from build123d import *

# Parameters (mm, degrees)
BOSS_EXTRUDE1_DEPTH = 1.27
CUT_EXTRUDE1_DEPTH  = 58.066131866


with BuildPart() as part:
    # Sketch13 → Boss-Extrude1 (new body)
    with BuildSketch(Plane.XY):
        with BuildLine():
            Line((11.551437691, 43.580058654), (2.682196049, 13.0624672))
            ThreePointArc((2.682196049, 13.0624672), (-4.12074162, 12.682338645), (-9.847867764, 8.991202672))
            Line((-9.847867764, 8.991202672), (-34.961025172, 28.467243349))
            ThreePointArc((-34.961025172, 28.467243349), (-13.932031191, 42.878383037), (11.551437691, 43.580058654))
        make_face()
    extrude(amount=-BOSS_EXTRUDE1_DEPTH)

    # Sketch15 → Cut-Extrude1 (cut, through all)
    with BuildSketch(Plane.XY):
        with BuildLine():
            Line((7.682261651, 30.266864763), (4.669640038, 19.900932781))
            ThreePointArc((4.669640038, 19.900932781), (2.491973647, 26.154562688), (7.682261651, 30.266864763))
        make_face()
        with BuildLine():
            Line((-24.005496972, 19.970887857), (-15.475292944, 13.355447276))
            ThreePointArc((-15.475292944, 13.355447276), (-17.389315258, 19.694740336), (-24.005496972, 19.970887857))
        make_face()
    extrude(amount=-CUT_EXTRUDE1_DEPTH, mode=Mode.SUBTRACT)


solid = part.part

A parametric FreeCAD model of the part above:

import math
import FreeCAD as App
import Part
import Sketcher

V = App.Vector
Q = App.Units.Quantity

doc = App.newDocument("Part")
params = doc.addObject("Spreadsheet::Sheet", "Params")
for row, (alias, value) in enumerate([
    ("sketch1_radius", "1.775 in"),
    ("sketch1_radius2", "0.525 in"),
    ("pad1_length", "0.05 in"),
    ("sketch2_radius", "0.225 in"),
], start=1):
    params.set(f"A{row}", alias)
    params.set(f"B{row}", "=" + value)
    params.setAlias(f"B{row}", alias)

body = doc.addObject("PartDesign::Body", "Body")

# Sketch on XY plane
sketch1 = body.newObject("Sketcher::SketchObject", "Sketch")
sketch1.AttachmentSupport = (doc.getObject("XY_Plane"), [""])
sketch1.MapMode = "FlatFace"
sketch1.addGeometry(Part.LineSegment(V(3, 13, 0), V(12, 44, 0)), False)
sketch1.addGeometry(Part.ArcOfCircle(Part.Circle(V(0, 0, 0), V(0, 0, 1), 45), math.radians(75), math.radians(141)), False)
sketch1.addGeometry(Part.LineSegment(V(-35, 28, 0), V(-10, 9, 0)), False)
sketch1.addGeometry(Part.ArcOfCircle(Part.Circle(V(0, 0, 0), V(0, 0, 1), 13), math.radians(78), math.radians(138)), False)
sketch1.addConstraint(Sketcher.Constraint("Coincident", 0, 2, 1, 1))
sketch1.addConstraint(Sketcher.Constraint("Coincident", 1, 2, 2, 1))
sketch1.addConstraint(Sketcher.Constraint("Coincident", 2, 2, 3, 2))
sketch1.addConstraint(Sketcher.Constraint("Coincident", 3, 1, 0, 1))
sketch1.addConstraint(Sketcher.Constraint("Coincident", 1, 3, -1, 1))
sketch1.addConstraint(Sketcher.Constraint("Coincident", 3, 3, -1, 1))
sketch1.addConstraint(Sketcher.Constraint("Equal", 0, 2))
sketch1.addConstraint(Sketcher.Constraint("Radius", 1, Q("1.775 in")))
sketch1.addConstraint(Sketcher.Constraint("Radius", 3, Q("0.525 in")))
sketch1.addConstraint(Sketcher.Constraint("Distance", 0, Q("31.78029 mm")))
sketch1.addConstraint(Sketcher.Constraint("DistanceY", -1, 1, 0, 2, Q("43.580059 mm")))
sketch1.addConstraint(Sketcher.Constraint("DistanceY", 2, 2, 1, 2, Q("19.476041 mm")))
sketch1.setExpression("Constraints[7]", "Params.sketch1_radius")
sketch1.setExpression("Constraints[8]", "Params.sketch1_radius2")
pad1 = body.newObject("PartDesign::Pad", "Pad")
pad1.Profile = sketch1
pad1.setExpression("Length", "Params.pad1_length")
pad1.Reversed = True

# Sketch on XY plane
sketch2 = body.newObject("Sketcher::SketchObject", "Sketch001")
sketch2.AttachmentSupport = (doc.getObject("XY_Plane"), [""])
sketch2.MapMode = "FlatFace"
sketch2.addGeometry(Part.LineSegment(V(5, 20, 0), V(8, 30, 0)), False)
sketch2.addGeometry(Part.ArcOfCircle(Part.Circle(V(8, 25, 0), V(0, 0, 1), 6), math.radians(93), math.radians(235)), False)
sketch2.addGeometry(Part.LineSegment(V(-24, 20, 0), V(-15, 13, 0)), False)
sketch2.addGeometry(Part.ArcOfCircle(Part.Circle(V(-21, 15, 0), V(0, 0, 1), 6), math.radians(-19), math.radians(123)), False)
sketch2.addConstraint(Sketcher.Constraint("Coincident", 0, 1, 1, 2))
sketch2.addConstraint(Sketcher.Constraint("Coincident", 1, 1, 0, 2))
sketch2.addConstraint(Sketcher.Constraint("Coincident", 2, 1, 3, 2))
sketch2.addConstraint(Sketcher.Constraint("Coincident", 3, 1, 2, 2))
sketch2.addConstraint(Sketcher.Constraint("Equal", 1, 3))
sketch2.addConstraint(Sketcher.Constraint("Equal", 0, 2))
sketch2.addConstraint(Sketcher.Constraint("Radius", 1, Q("0.225 in")))
sketch2.addConstraint(Sketcher.Constraint("DistanceX", 3, 3, 0, 1, Q("25.561301 mm")))
sketch2.addConstraint(Sketcher.Constraint("DistanceX", 2, 1, 1, 3, Q("31.985401 mm")))
sketch2.addConstraint(Sketcher.Constraint("DistanceY", -1, 1, 1, 3, Q("24.559621 mm")))
sketch2.addConstraint(Sketcher.Constraint("DistanceX", 3, 3, -1, 1, Q("20.891661 mm")))
sketch2.addConstraint(Sketcher.Constraint("DistanceY", -1, 1, 3, 3, Q("15.17868 mm")))
sketch2.addConstraint(Sketcher.Constraint("DistanceX", -1, 1, 1, 1, Q("7.682262 mm")))
sketch2.addConstraint(Sketcher.Constraint("DistanceY", 0, 1, 1, 3, Q("4.658688 mm")))
sketch2.setExpression("Constraints[6]", "Params.sketch2_radius")
pocket1 = body.newObject("PartDesign::Pocket", "Pocket")
pocket1.Profile = sketch2
pocket1.Type = "ThroughAll"

doc.recompute()
